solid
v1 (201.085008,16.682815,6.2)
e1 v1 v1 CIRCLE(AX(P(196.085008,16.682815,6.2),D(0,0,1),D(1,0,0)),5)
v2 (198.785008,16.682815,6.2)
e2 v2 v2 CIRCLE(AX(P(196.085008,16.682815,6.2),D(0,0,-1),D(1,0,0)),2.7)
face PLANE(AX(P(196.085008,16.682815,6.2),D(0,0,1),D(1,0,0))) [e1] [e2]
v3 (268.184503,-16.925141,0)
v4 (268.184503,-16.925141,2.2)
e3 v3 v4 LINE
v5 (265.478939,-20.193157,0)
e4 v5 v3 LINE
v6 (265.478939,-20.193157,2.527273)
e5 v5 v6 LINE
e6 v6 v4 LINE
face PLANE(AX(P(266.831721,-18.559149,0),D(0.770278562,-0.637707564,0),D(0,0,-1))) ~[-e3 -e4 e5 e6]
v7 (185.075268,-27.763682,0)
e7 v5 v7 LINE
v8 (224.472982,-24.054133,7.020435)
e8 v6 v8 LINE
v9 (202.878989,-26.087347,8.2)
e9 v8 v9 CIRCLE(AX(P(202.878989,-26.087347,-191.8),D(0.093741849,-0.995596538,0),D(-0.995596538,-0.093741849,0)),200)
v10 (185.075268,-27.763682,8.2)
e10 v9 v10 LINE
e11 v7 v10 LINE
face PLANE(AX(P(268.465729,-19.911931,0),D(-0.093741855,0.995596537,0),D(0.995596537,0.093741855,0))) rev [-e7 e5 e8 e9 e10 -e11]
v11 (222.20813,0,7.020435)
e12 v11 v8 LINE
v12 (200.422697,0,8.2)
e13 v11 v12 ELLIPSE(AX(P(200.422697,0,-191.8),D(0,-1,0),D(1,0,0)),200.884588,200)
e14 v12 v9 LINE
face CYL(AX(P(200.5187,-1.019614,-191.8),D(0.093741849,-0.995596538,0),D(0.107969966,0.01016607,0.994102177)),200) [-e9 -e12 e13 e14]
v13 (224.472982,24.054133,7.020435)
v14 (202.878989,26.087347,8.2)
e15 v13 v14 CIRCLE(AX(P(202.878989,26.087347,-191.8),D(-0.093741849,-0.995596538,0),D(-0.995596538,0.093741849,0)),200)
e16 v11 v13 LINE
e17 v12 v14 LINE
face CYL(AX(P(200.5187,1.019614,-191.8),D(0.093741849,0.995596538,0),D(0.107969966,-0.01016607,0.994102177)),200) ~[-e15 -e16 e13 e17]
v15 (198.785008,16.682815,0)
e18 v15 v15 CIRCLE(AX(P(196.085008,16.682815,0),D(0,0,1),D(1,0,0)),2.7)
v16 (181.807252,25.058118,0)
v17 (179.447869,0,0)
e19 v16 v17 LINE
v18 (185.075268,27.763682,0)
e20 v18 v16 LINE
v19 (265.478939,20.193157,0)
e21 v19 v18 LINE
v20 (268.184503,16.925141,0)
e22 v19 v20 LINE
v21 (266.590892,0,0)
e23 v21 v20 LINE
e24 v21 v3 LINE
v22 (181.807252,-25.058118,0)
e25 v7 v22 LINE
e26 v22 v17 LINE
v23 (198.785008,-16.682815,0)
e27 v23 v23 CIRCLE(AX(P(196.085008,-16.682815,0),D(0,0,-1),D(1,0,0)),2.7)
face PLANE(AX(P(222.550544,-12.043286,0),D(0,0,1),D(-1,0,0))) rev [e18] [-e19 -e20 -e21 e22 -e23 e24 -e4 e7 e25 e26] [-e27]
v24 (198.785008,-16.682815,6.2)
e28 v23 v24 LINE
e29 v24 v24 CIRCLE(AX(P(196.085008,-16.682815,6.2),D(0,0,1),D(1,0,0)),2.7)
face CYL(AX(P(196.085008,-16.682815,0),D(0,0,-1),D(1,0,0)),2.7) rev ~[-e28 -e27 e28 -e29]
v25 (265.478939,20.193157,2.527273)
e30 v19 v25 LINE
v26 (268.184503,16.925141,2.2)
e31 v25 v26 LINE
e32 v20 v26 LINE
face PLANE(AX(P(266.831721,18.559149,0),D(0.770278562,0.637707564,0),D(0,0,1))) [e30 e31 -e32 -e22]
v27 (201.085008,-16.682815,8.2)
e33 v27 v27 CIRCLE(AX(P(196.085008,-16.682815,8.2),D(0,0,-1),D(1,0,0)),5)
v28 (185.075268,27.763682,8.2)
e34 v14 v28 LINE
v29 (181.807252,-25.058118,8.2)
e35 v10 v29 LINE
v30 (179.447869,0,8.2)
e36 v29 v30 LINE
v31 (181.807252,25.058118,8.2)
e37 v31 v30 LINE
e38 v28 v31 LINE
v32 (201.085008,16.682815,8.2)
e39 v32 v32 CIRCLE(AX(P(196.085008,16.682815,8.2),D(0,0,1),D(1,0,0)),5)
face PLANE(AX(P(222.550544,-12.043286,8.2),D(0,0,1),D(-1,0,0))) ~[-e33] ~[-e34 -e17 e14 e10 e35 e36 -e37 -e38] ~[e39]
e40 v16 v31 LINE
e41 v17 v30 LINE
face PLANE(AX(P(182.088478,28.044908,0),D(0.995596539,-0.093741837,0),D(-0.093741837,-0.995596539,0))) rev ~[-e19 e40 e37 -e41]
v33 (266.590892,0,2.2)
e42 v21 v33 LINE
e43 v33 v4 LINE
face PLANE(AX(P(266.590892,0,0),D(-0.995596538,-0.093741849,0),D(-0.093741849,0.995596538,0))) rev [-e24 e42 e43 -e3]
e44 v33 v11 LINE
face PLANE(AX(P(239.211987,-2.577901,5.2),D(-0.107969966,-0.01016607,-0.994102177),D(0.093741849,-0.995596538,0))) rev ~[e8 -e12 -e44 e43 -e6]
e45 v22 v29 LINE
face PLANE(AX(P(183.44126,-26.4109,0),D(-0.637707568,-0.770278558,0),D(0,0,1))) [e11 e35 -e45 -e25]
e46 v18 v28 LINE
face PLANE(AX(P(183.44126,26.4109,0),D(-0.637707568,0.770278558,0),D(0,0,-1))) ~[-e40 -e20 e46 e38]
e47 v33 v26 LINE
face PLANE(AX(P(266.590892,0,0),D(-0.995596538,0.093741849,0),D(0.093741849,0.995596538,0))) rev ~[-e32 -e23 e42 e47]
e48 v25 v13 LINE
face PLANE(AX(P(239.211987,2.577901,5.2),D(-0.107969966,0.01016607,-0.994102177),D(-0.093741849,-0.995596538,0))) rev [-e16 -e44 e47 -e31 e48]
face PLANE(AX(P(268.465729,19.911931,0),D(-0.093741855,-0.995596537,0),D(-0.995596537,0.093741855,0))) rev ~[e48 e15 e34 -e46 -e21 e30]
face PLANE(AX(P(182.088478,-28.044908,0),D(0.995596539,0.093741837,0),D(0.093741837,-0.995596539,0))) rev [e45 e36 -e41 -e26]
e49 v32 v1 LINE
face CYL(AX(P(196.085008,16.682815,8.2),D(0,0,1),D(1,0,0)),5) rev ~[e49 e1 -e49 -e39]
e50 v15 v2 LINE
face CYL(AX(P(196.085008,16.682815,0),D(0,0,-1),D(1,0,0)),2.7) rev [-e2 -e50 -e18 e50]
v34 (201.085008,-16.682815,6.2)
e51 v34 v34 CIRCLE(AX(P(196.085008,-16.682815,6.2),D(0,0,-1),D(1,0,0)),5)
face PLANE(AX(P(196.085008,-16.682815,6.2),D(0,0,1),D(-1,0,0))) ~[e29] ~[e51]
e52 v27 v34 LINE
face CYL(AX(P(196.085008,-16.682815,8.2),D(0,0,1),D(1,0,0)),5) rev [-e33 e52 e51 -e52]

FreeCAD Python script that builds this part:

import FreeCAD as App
import Part
import Sketcher
from FreeCAD import Vector
Q = App.Units.Quantity


def edges_at(feature, points):
    """Names of the edges that pass closest to the given points."""
    edges = feature.Shape.Edges
    near = lambda p: min(range(len(edges)), key=lambda i: edges[i].distToShape(Part.Vertex(*p))[0])
    return sorted({f"Edge{near(p) + 1}" for p in points})

doc = App.newDocument("Part")
body = doc.addObject("PartDesign::Body", "Body")

# Sketch on XY plane
sketch1 = doc.addObject("Sketcher::SketchObject", "Sketch")
body.addObject(sketch1)
sketch1.AttachmentSupport = (doc.XY_Plane, [""])
sketch1.MapMode = "FlatFace"
sketch1.addGeometry(Part.LineSegment(Vector(268.5, 19.9, 0), Vector(182.1, 28, 0)), False)
sketch1.addGeometry(Part.LineSegment(Vector(182.1, 28, 0), Vector(179.4, 0, 0)), False)
sketch1.addGeometry(Part.LineSegment(Vector(179.4, 0, 0), Vector(266.6, 0, 0)), False)
sketch1.addGeometry(Part.LineSegment(Vector(266.6, 0, 0), Vector(268.5, 19.9, 0)), False)
sketch1.addGeometry(Part.Circle(Vector(196.1, 16.7, 0), Vector(0, 0, 1), 2.7), False)
sketch1.addConstraint(Sketcher.Constraint("Coincident", 0, 2, 1, 1))
sketch1.addConstraint(Sketcher.Constraint("Coincident", 1, 2, 2, 1))
sketch1.addConstraint(Sketcher.Constraint("Coincident", 2, 2, 3, 1))
sketch1.addConstraint(Sketcher.Constraint("Coincident", 3, 2, 0, 1))
sketch1.addConstraint(Sketcher.Constraint("Horizontal", 2))
sketch1.addConstraint(Sketcher.Constraint("PointOnObject", 1, 2, -1))
sketch1.addConstraint(Sketcher.Constraint("Perpendicular", 0, 1))
sketch1.addConstraint(Sketcher.Constraint("Parallel", 1, 3))
sketch1.addConstraint(Sketcher.Constraint("Diameter", 4, Q("5.4 mm")))
sketch1.addConstraint(Sketcher.Constraint("Distance", 3, Q("20 mm")))
sketch1.addConstraint(Sketcher.Constraint("Distance", 1, Q("28.168949 mm")))
sketch1.addConstraint(Sketcher.Constraint("DistanceX", 2, 1, 2, 2, Q("87.143023 mm")))
sketch1.addConstraint(Sketcher.Constraint("DistanceX", -1, 1, 0, 2, Q("182.088478 mm")))
sketch1.addConstraint(Sketcher.Constraint("DistanceX", 0, 2, 4, 3, Q("13.99653 mm")))
sketch1.addConstraint(Sketcher.Constraint("DistanceY", -1, 1, 4, 3, Q("16.682815 mm")))
pad1 = doc.addObject("PartDesign::Pad", "Pad")
body.addObject(pad1)
pad1.Profile = sketch1
pad1.Length = 8.2

# Sketch on XY plane
sketch2 = doc.addObject("Sketcher::SketchObject", "Sketch001")
body.addObject(sketch2)
sketch2.AttachmentSupport = (doc.XY_Plane, [""])
sketch2.MapMode = "FlatFace"
sketch2.AttachmentOffset = App.Placement(Vector(0, 0, 8.2), App.Rotation())
sketch2.addGeometry(Part.Circle(Vector(196, 17, 0), Vector(0, 0, 1), 5), False)
sketch2.addConstraint(Sketcher.Constraint("Diameter", 0, Q("10 mm")))
sketch2.addConstraint(Sketcher.Constraint("DistanceX", -1, 1, 0, 3, Q("196.085008 mm")))
sketch2.addConstraint(Sketcher.Constraint("DistanceY", -1, 1, 0, 3, Q("16.682815 mm")))
pocket1 = doc.addObject("PartDesign::Pocket", "Pocket")
body.addObject(pocket1)
pocket1.Profile = sketch2
pocket1.Length = 2
doc.recompute()

chamfer = doc.addObject("PartDesign::Chamfer", "Chamfer")
body.addObject(chamfer)
chamfer.Base = (pocket1, edges_at(pocket1, [(182.088, 28.045, 4.1)]))
chamfer.Size = 3
doc.recompute()

chamfer2 = doc.addObject("PartDesign::Chamfer", "Chamfer001")
body.addObject(chamfer2)
chamfer2.Base = (chamfer, edges_at(chamfer, [(267.528, 9.956, 8.2)]))
chamfer2.ChamferType = "Two distances"
chamfer2.Size = 6
chamfer2.Size2 = 55
doc.recompute()

fillet = doc.addObject("PartDesign::Fillet", "Fillet")
body.addObject(fillet)
fillet.Base = (chamfer2, edges_at(chamfer2, [(212.528, 12.534, 8.2)]))
fillet.Radius = 200
doc.recompute()

chamfer3 = doc.addObject("PartDesign::Chamfer", "Chamfer002")
body.addObject(chamfer3)
chamfer3.Base = (fillet, edges_at(fillet, [(268.466, 19.912, 1.1)]))
chamfer3.Size = 3
body2 = doc.addObject("PartDesign::Body", "Body001")
doc.recompute()

body2.BaseFeature = body
doc.recompute()

mirroring = doc.addObject("Part::Mirroring", "Mirroring")
mirroring.Source = body
mirroring.Base = Vector(215.438972, 0, 3.448187)
mirroring.Normal = Vector(0, -1, 0)
body3 = doc.addObject("PartDesign::Body", "Body002")
body3.BaseFeature = mirroring
boolean = doc.addObject("PartDesign::Boolean", "Boolean")
body2.addObject(boolean)
boolean.Type = "Fuse"
boolean.addObjects([body3])
doc.recompute()
mirroring.Visibility = False

doc.recompute()
